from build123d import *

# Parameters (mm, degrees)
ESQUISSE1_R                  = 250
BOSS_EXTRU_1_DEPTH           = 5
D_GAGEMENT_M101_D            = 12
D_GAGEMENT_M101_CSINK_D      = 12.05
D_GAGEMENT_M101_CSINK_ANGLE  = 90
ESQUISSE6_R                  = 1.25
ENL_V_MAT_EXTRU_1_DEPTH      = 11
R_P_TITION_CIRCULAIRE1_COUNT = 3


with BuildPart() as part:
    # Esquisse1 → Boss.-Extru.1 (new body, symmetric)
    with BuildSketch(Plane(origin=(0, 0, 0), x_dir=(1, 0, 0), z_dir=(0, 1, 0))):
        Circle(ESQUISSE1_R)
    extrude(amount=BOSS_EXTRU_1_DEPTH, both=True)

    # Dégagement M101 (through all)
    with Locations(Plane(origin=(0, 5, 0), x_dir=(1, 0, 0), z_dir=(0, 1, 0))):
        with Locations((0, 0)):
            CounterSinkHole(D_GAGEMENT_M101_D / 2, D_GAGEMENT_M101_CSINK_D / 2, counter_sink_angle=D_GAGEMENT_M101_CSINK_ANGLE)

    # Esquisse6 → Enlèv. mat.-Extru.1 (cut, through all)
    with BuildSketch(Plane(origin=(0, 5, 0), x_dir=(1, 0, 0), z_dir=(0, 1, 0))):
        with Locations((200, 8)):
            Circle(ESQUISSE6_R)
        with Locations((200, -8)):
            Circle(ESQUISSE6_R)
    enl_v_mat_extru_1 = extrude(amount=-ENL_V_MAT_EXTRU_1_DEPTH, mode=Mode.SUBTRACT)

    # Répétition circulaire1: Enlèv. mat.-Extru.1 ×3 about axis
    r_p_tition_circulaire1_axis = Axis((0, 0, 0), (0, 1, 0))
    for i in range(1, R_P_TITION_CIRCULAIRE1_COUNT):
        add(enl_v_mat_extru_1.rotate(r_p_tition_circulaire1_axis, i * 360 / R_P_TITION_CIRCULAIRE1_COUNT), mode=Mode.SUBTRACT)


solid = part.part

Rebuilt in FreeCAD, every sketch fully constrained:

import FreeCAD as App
import Part
import Sketcher
from FreeCAD import Vector

doc = App.newDocument("Part")
body = doc.addObject("PartDesign::Body", "Body")

# Sketch on XZ plane
sketch1 = body.newObject("Sketcher::SketchObject", "Sketch")
sketch1.AttachmentSupport = (doc.getObject("XZ_Plane"), [""])
sketch1.MapMode = "FlatFace"
sketch1.addGeometry(Part.Circle(Vector(0, 0, 0), Vector(0, 0, 1), 250), False)
sketch1.addConstraint(Sketcher.Constraint("Coincident", 0, 3, -1, 1))
sketch1.addConstraint(Sketcher.Constraint("Diameter", 0, 500.0))
pad1 = body.newObject("PartDesign::Pad", "Pad")
pad1.Profile = sketch1
pad1.Length = 10
pad1.Midplane = True

# Sketch on XZ plane
sketch2 = body.newObject("Sketcher::SketchObject", "Sketch001")
sketch2.AttachmentSupport = (doc.getObject("XZ_Plane"), [""])
sketch2.MapMode = "FlatFace"
sketch2.AttachmentOffset = App.Placement(Vector(0, 0, -5), App.Rotation())
sketch2.addGeometry(Part.Circle(Vector(0, 0, 0), Vector(0, 0, 1), 6), False)
sketch2.addConstraint(Sketcher.Constraint("Coincident", 0, 3, -1, 1))
sketch2.addConstraint(Sketcher.Constraint("Diameter", 0, 12.0))
doc.recompute()
hole = body.newObject("PartDesign::Hole", "Hole")
hole.Profile = sketch2
hole.ThreadType = "None"
hole.Diameter = 12
hole.DepthType = "ThroughAll"
hole.HoleCutType = "Countersink"
hole.HoleCutDiameter = 12.05
hole.HoleCutCountersinkAngle = 90
hole.Reversed = True

# Sketch on XZ plane
sketch3 = body.newObject("Sketcher::SketchObject", "Sketch002")
sketch3.AttachmentSupport = (doc.getObject("XZ_Plane"), [""])
sketch3.MapMode = "FlatFace"
sketch3.AttachmentOffset = App.Placement(Vector(0, 0, -5), App.Rotation())
sketch3.addGeometry(Part.Circle(Vector(200, -8, 0), Vector(0, 0, 1), 1.2), False)
sketch3.addGeometry(Part.Circle(Vector(200, 8, 0), Vector(0, 0, 1), 1.2), False)
sketch3.addConstraint(Sketcher.Constraint("Equal", 0, 1))
sketch3.addConstraint(Sketcher.Constraint("Symmetric", 0, 3, 1, 3, -1))
sketch3.addConstraint(Sketcher.Constraint("Diameter", 0, 2.5))
sketch3.addConstraint(Sketcher.Constraint("DistanceX", -1, 1, 0, 3, 200.0))
sketch3.addConstraint(Sketcher.Constraint("DistanceY", 0, 3, -1, 1, 8.0))
pocket1 = body.newObject("PartDesign::Pocket", "Pocket")
pocket1.Profile = sketch3
pocket1.Type = "ThroughAll"
pocket1.Reversed = True
doc.recompute()

polarpattern = body.newObject("PartDesign::PolarPattern", "PolarPattern")
polarpattern.Originals = [pocket1]
polarpattern.Axis = (doc.getObject("Y_Axis"), [""])
polarpattern.Angle = 360
polarpattern.Occurrences = 3
body.Tip = polarpattern

doc.recompute()
